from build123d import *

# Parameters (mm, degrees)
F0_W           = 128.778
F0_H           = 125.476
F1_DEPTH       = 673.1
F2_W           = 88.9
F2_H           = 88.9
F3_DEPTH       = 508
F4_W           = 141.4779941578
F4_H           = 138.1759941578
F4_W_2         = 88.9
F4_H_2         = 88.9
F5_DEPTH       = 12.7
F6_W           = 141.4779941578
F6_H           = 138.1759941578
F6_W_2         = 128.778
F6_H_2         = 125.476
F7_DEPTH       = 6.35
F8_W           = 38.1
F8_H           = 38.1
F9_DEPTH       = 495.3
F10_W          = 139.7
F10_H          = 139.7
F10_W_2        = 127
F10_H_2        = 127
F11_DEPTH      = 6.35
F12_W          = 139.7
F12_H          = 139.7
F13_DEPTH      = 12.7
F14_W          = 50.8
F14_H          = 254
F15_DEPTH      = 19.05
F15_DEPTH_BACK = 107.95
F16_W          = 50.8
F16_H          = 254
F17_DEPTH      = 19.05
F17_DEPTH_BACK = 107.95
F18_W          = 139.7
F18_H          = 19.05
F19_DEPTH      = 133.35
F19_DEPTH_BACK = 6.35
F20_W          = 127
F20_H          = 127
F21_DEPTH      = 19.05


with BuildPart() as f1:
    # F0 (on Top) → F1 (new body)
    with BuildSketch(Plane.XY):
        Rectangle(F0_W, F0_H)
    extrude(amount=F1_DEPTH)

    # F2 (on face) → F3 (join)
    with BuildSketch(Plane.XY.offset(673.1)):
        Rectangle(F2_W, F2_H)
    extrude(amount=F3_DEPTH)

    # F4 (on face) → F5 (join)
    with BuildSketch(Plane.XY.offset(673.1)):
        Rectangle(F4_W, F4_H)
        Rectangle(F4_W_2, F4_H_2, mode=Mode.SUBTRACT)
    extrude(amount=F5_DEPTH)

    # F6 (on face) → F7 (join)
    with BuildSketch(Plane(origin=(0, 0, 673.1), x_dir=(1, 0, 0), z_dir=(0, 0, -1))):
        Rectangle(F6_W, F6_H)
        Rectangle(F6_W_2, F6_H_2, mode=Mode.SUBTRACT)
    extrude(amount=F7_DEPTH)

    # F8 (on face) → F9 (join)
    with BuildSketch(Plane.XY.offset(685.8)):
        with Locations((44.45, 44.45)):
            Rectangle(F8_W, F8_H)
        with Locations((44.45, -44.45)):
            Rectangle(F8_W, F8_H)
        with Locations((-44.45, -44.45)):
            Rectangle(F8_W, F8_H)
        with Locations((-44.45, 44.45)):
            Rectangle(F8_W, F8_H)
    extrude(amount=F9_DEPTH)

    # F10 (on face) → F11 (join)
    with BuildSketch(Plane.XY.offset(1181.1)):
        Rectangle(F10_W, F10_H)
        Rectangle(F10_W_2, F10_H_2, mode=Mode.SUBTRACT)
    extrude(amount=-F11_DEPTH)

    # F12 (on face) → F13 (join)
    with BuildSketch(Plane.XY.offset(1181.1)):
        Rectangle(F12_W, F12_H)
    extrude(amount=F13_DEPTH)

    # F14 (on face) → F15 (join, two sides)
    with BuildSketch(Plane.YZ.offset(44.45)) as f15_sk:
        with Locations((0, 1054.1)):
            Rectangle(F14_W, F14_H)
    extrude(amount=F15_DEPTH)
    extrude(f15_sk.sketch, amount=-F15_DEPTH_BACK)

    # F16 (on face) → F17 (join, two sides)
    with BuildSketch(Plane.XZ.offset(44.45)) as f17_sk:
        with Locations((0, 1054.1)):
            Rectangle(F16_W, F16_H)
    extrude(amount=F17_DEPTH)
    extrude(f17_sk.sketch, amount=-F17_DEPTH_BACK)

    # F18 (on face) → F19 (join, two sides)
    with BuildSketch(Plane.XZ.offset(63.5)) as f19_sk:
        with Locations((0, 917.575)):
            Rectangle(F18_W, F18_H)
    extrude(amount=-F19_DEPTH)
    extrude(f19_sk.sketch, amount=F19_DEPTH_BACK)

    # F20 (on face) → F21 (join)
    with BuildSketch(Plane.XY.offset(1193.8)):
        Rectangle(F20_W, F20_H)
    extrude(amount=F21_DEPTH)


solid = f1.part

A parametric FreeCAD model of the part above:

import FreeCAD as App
import Part
import Sketcher

V = App.Vector
Q = App.Units.Quantity

doc = App.newDocument("Part")
body = doc.addObject("PartDesign::Body", "Body")

# Sketch on XY plane
sketch1 = doc.addObject("Sketcher::SketchObject", "Sketch")
body.addObject(sketch1)
sketch1.AttachmentSupport = (doc.XY_Plane, [""])
sketch1.MapMode = "FlatFace"
sketch1.addGeometry([
    Part.LineSegment(V(-64, 63, 0), V(-64, -63, 0)),
    Part.LineSegment(V(-64, -63, 0), V(64, -63, 0)),
    Part.LineSegment(V(64, -63, 0), V(64, 63, 0)),
    Part.LineSegment(V(64, 63, 0), V(-64, 63, 0)),
], False)
sketch1.addConstraint([
    Sketcher.Constraint("Coincident", 0, 2, 1, 1),
    Sketcher.Constraint("Coincident", 1, 2, 2, 1),
    Sketcher.Constraint("Coincident", 2, 2, 3, 1),
    Sketcher.Constraint("Coincident", 3, 2, 0, 1),
    Sketcher.Constraint("Vertical", 0),
    Sketcher.Constraint("Horizontal", 1),
    Sketcher.Constraint("Vertical", 2),
    Sketcher.Constraint("Horizontal", 3),
    Sketcher.Constraint("Symmetric", 0, 2, 2, 2, -1, 1),
    Sketcher.Constraint("DistanceX", 1, 1, 1, 2, Q("5.07 in")),
    Sketcher.Constraint("DistanceY", 0, 2, 0, 1, Q("4.94 in")),
])
pad1 = doc.addObject("PartDesign::Pad", "Pad")
body.addObject(pad1)
pad1.Profile = sketch1
pad1.Length = Q("26.5 in")

# Sketch on XY plane
sketch2 = doc.addObject("Sketcher::SketchObject", "Sketch001")
body.addObject(sketch2)
sketch2.AttachmentSupport = (doc.XY_Plane, [""])
sketch2.MapMode = "FlatFace"
sketch2.AttachmentOffset = App.Placement(V(0, 0, 26.5 * 25.4), App.Rotation())
sketch2.addGeometry([
    Part.LineSegment(V(-44, 44, 0), V(-44, -44, 0)),
    Part.LineSegment(V(-44, -44, 0), V(44, -44, 0)),
    Part.LineSegment(V(44, -44, 0), V(44, 44, 0)),
    Part.LineSegment(V(44, 44, 0), V(-44, 44, 0)),
], False)
sketch2.addConstraint([
    Sketcher.Constraint("Coincident", 0, 2, 1, 1),
    Sketcher.Constraint("Coincident", 1, 2, 2, 1),
    Sketcher.Constraint("Coincident", 2, 2, 3, 1),
    Sketcher.Constraint("Coincident", 3, 2, 0, 1),
    Sketcher.Constraint("Vertical", 0),
    Sketcher.Constraint("Horizontal", 1),
    Sketcher.Constraint("Vertical", 2),
    Sketcher.Constraint("Horizontal", 3),
    Sketcher.Constraint("Symmetric", 0, 2, 2, 2, -1, 1),
    Sketcher.Constraint("Equal", 3, 0),
    Sketcher.Constraint("DistanceX", 1, 1, 1, 2, Q("3.5 in")),
])
pad2 = doc.addObject("PartDesign::Pad", "Pad001")
body.addObject(pad2)
pad2.Profile = sketch2
pad2.Length = Q("20 in")

# Sketch on XY plane
sketch3 = doc.addObject("Sketcher::SketchObject", "Sketch002")
body.addObject(sketch3)
sketch3.AttachmentSupport = (doc.XY_Plane, [""])
sketch3.MapMode = "FlatFace"
sketch3.AttachmentOffset = App.Placement(V(0, 0, 26.5 * 25.4), App.Rotation())
sketch3.addGeometry([
    Part.LineSegment(V(-71, 69, 0), V(-71, -69, 0)),  # 0
    Part.LineSegment(V(-71, -69, 0), V(71, -69, 0)),  # 1
    Part.LineSegment(V(71, -69, 0), V(71, 69, 0)),  # 2
    Part.LineSegment(V(71, 69, 0), V(-71, 69, 0)),  # 3
    Part.LineSegment(V(44, -44, 0), V(-44, -44, 0)),  # 4
    Part.LineSegment(V(-44, -44, 0), V(-44, 44, 0)),  # 5
    Part.LineSegment(V(-44, 44, 0), V(44, 44, 0)),  # 6
    Part.LineSegment(V(44, 44, 0), V(44, -44, 0)),  # 7
], False)
sketch3.addConstraint([
    Sketcher.Constraint("Coincident", 0, 2, 1, 1),
    Sketcher.Constraint("Coincident", 1, 2, 2, 1),
    Sketcher.Constraint("Coincident", 2, 2, 3, 1),
    Sketcher.Constraint("Coincident", 3, 2, 0, 1),
    Sketcher.Constraint("Coincident", 4, 2, 5, 1),
    Sketcher.Constraint("Coincident", 5, 2, 6, 1),
    Sketcher.Constraint("Coincident", 6, 2, 7, 1),
    Sketcher.Constraint("Coincident", 7, 2, 4, 1),
    Sketcher.Constraint("Vertical", 0),
    Sketcher.Constraint("Horizontal", 1),
    Sketcher.Constraint("Vertical", 2),
    Sketcher.Constraint("Horizontal", 3),
    Sketcher.Constraint("Horizontal", 4),
    Sketcher.Constraint("Vertical", 5),
    Sketcher.Constraint("Horizontal", 6),
    Sketcher.Constraint("Vertical", 7),
    Sketcher.Constraint("Symmetric", 0, 2, 2, 2, -1, 1),
    Sketcher.Constraint("Symmetric", 4, 2, 6, 2, -1, 1),
    Sketcher.Constraint("Equal", 6, 5),
    Sketcher.Constraint("DistanceX", 4, 2, 4, 1, Q("3.5 in")),
    Sketcher.Constraint("DistanceY", 0, 2, -1, 1, Q("2.7199999 in")),
    Sketcher.Constraint("DistanceX", 0, 2, -1, 1, Q("2.7849999 in")),
])
pad3 = doc.addObject("PartDesign::Pad", "Pad002")
body.addObject(pad3)
pad3.Profile = sketch3
pad3.Length = Q("0.5 in")

# Sketch on XY plane
sketch4 = doc.addObject("Sketcher::SketchObject", "Sketch003")
body.addObject(sketch4)
sketch4.AttachmentSupport = (doc.XY_Plane, [""])
sketch4.MapMode = "FlatFace"
sketch4.AttachmentOffset = App.Placement(V(0, 0, 26.5 * 25.4), App.Rotation())
sketch4.addGeometry([
    Part.LineSegment(V(-71, -69, 0), V(-71, 69, 0)),  # 0
    Part.LineSegment(V(-71, 69, 0), V(71, 69, 0)),  # 1
    Part.LineSegment(V(71, 69, 0), V(71, -69, 0)),  # 2
    Part.LineSegment(V(71, -69, 0), V(-71, -69, 0)),  # 3
    Part.LineSegment(V(64, 63, 0), V(-64, 63, 0)),  # 4
    Part.LineSegment(V(-64, 63, 0), V(-64, -63, 0)),  # 5
    Part.LineSegment(V(-64, -63, 0), V(64, -63, 0)),  # 6
    Part.LineSegment(V(64, -63, 0), V(64, 63, 0)),  # 7
], False)
sketch4.addConstraint([
    Sketcher.Constraint("Coincident", 0, 2, 1, 1),
    Sketcher.Constraint("Coincident", 1, 2, 2, 1),
    Sketcher.Constraint("Coincident", 2, 2, 3, 1),
    Sketcher.Constraint("Coincident", 3, 2, 0, 1),
    Sketcher.Constraint("Coincident", 4, 2, 5, 1),
    Sketcher.Constraint("Coincident", 5, 2, 6, 1),
    Sketcher.Constraint("Coincident", 6, 2, 7, 1),
    Sketcher.Constraint("Coincident", 7, 2, 4, 1),
    Sketcher.Constraint("Vertical", 0),
    Sketcher.Constraint("Horizontal", 1),
    Sketcher.Constraint("Vertical", 2),
    Sketcher.Constraint("Horizontal", 3),
    Sketcher.Constraint("Horizontal", 4),
    Sketcher.Constraint("Vertical", 5),
    Sketcher.Constraint("Horizontal", 6),
    Sketcher.Constraint("Vertical", 7),
    Sketcher.Constraint("Symmetric", 0, 2, 2, 2, -1, 1),
    Sketcher.Constraint("Symmetric", 4, 2, 6, 2, -1, 1),
    Sketcher.Constraint("DistanceX", 4, 2, 4, 1, Q("5.07 in")),
    Sketcher.Constraint("DistanceY", 5, 2, 5, 1, Q("4.94 in")),
    Sketcher.Constraint("DistanceY", -1, 1, 0, 2, Q("2.7199999 in")),
    Sketcher.Constraint("DistanceX", 0, 2, 4, 2, Q("0.2499999 in")),
])
pad4 = doc.addObject("PartDesign::Pad", "Pad003")
body.addObject(pad4)
pad4.Profile = sketch4
pad4.Length = Q("0.25 in")
pad4.Reversed = True

# Sketch on XY plane
sketch5 = doc.addObject("Sketcher::SketchObject", "Sketch004")
body.addObject(sketch5)
sketch5.AttachmentSupport = (doc.XY_Plane, [""])
sketch5.MapMode = "FlatFace"
sketch5.AttachmentOffset = App.Placement(V(0, 0, 27 * 25.4), App.Rotation())
sketch5.addGeometry([
    Part.LineSegment(V(25, 64, 0), V(25, 25, 0)),  # 0
    Part.LineSegment(V(25, 25, 0), V(64, 25, 0)),  # 1
    Part.LineSegment(V(64, 25, 0), V(64, 64, 0)),  # 2
    Part.LineSegment(V(64, 64, 0), V(25, 64, 0)),  # 3
    Part.LineSegment(V(25, -25, 0), V(25, -64, 0)),  # 4
    Part.LineSegment(V(25, -64, 0), V(64, -64, 0)),  # 5
    Part.LineSegment(V(64, -64, 0), V(64, -25, 0)),  # 6
    Part.LineSegment(V(64, -25, 0), V(25, -25, 0)),  # 7
    Part.LineSegment(V(-64, -25, 0), V(-64, -64, 0)),  # 8
    Part.LineSegment(V(-64, -64, 0), V(-25, -64, 0)),  # 9
    Part.LineSegment(V(-25, -64, 0), V(-25, -25, 0)),  # 10
    Part.LineSegment(V(-25, -25, 0), V(-64, -25, 0)),  # 11
    Part.LineSegment(V(-64, 64, 0), V(-64, 25, 0)),  # 12
    Part.LineSegment(V(-64, 25, 0), V(-25, 25, 0)),  # 13
    Part.LineSegment(V(-25, 25, 0), V(-25, 64, 0)),  # 14
    Part.LineSegment(V(-25, 64, 0), V(-64, 64, 0)),  # 15
], False)
sketch5.addConstraint([
    Sketcher.Constraint("Coincident", 0, 2, 1, 1),
    Sketcher.Constraint("Coincident", 1, 2, 2, 1),
    Sketcher.Constraint("Coincident", 2, 2, 3, 1),
    Sketcher.Constraint("Coincident", 3, 2, 0, 1),
    Sketcher.Constraint("Coincident", 4, 2, 5, 1),
    Sketcher.Constraint("Coincident", 5, 2, 6, 1),
    Sketcher.Constraint("Coincident", 6, 2, 7, 1),
    Sketcher.Constraint("Coincident", 7, 2, 4, 1),
    Sketcher.Constraint("Coincident", 8, 2, 9, 1),
    Sketcher.Constraint("Coincident", 9, 2, 10, 1),
    Sketcher.Constraint("Coincident", 10, 2, 11, 1),
    Sketcher.Constraint("Coincident", 11, 2, 8, 1),
    Sketcher.Constraint("Coincident", 12, 2, 13, 1),
    Sketcher.Constraint("Coincident", 13, 2, 14, 1),
    Sketcher.Constraint("Coincident", 14, 2, 15, 1),
    Sketcher.Constraint("Coincident", 15, 2, 12, 1),
    Sketcher.Constraint("Vertical", 0),
    Sketcher.Constraint("Horizontal", 1),
    Sketcher.Constraint("Vertical", 2),
    Sketcher.Constraint("Horizontal", 3),
    Sketcher.Constraint("Vertical", 4),
    Sketcher.Constraint("Horizontal", 5),
    Sketcher.Constraint("Vertical", 6),
    Sketcher.Constraint("Horizontal", 7),
    Sketcher.Constraint("Vertical", 8),
    Sketcher.Constraint("Horizontal", 9),
    Sketcher.Constraint("Vertical", 10),
    Sketcher.Constraint("Horizontal", 11),
    Sketcher.Constraint("Vertical", 12),
    Sketcher.Constraint("Horizontal", 13),
    Sketcher.Constraint("Vertical", 14),
    Sketcher.Constraint("Horizontal", 15),
    Sketcher.Constraint("Symmetric", 2, 2, 8, 2, -1, 1),
    Sketcher.Constraint("Symmetric", 0, 2, 10, 2, -1, 1),
    Sketcher.Constraint("Symmetric", 6, 2, 12, 2, -1, 1),
    Sketcher.Constraint("Symmetric", 4, 2, 14, 2, -1, 1),
    Sketcher.Constraint("Symmetric", 5, 2, 8, 2, -2),
    Sketcher.Constraint("Symmetric", 7, 2, 10, 2, -2),
    Sketcher.Constraint("Equal", 15, 0),
    Sketcher.Constraint("DistanceX", 1, 1, 1, 2, Q("1.5 in")),
    Sketcher.Constraint("DistanceX", -1, 1, 0, 2, Q("1 in")),
    Sketcher.Constraint("DistanceY", -1, 1, 0, 2, Q("1 in")),
])
pad5 = doc.addObject("PartDesign::Pad", "Pad004")
body.addObject(pad5)
pad5.Profile = sketch5
pad5.Length = Q("19.5 in")

# Sketch on XY plane
sketch6 = doc.addObject("Sketcher::SketchObject", "Sketch005")
body.addObject(sketch6)
sketch6.AttachmentSupport = (doc.XY_Plane, [""])
sketch6.MapMode = "FlatFace"
sketch6.AttachmentOffset = App.Placement(V(0, 0, 46.5 * 25.4), App.Rotation())
sketch6.addGeometry([
    Part.LineSegment(V(-70, 70, 0), V(-70, -70, 0)),  # 0
    Part.LineSegment(V(-70, -70, 0), V(70, -70, 0)),  # 1
    Part.LineSegment(V(70, -70, 0), V(70, 70, 0)),  # 2
    Part.LineSegment(V(70, 70, 0), V(-70, 70, 0)),  # 3
    Part.LineSegment(V(64, -64, 0), V(-64, -64, 0)),  # 4
    Part.LineSegment(V(-64, -64, 0), V(-64, 64, 0)),  # 5
    Part.LineSegment(V(-64, 64, 0), V(64, 64, 0)),  # 6
    Part.LineSegment(V(64, 64, 0), V(64, -64, 0)),  # 7
], False)
sketch6.addConstraint([
    Sketcher.Constraint("Coincident", 0, 2, 1, 1),
    Sketcher.Constraint("Coincident", 1, 2, 2, 1),
    Sketcher.Constraint("Coincident", 2, 2, 3, 1),
    Sketcher.Constraint("Coincident", 3, 2, 0, 1),
    Sketcher.Constraint("Coincident", 4, 2, 5, 1),
    Sketcher.Constraint("Coincident", 5, 2, 6, 1),
    Sketcher.Constraint("Coincident", 6, 2, 7, 1),
    Sketcher.Constraint("Coincident", 7, 2, 4, 1),
    Sketcher.Constraint("Vertical", 0),
    Sketcher.Constraint("Horizontal", 1),
    Sketcher.Constraint("Vertical", 2),
    Sketcher.Constraint("Horizontal", 3),
    Sketcher.Constraint("Horizontal", 4),
    Sketcher.Constraint("Vertical", 5),
    Sketcher.Constraint("Horizontal", 6),
    Sketcher.Constraint("Vertical", 7),
    Sketcher.Constraint("Symmetric", 0, 2, 2, 2, -1, 1),
    Sketcher.Constraint("Symmetric", 4, 2, 6, 2, -1, 1),
    Sketcher.Constraint("Equal", 3, 0),
    Sketcher.Constraint("Equal", 6, 5),
    Sketcher.Constraint("DistanceX", 4, 2, 4, 1, Q("5 in")),
    Sketcher.Constraint("DistanceX", 1, 1, 1, 2, Q("5.5 in")),
])
pad6 = doc.addObject("PartDesign::Pad", "Pad005")
body.addObject(pad6)
pad6.Profile = sketch6
pad6.Length = Q("0.25 in")
pad6.Reversed = True

# Sketch on XY plane
sketch7 = doc.addObject("Sketcher::SketchObject", "Sketch006")
body.addObject(sketch7)
sketch7.AttachmentSupport = (doc.XY_Plane, [""])
sketch7.MapMode = "FlatFace"
sketch7.AttachmentOffset = App.Placement(V(0, 0, 46.5 * 25.4), App.Rotation())
sketch7.addGeometry([
    Part.LineSegment(V(-70, 70, 0), V(-70, -70, 0)),
    Part.LineSegment(V(-70, -70, 0), V(70, -70, 0)),
    Part.LineSegment(V(70, -70, 0), V(70, 70, 0)),
    Part.LineSegment(V(70, 70, 0), V(-70, 70, 0)),
], False)
sketch7.addConstraint([
    Sketcher.Constraint("Coincident", 0, 2, 1, 1),
    Sketcher.Constraint("Coincident", 1, 2, 2, 1),
    Sketcher.Constraint("Coincident", 2, 2, 3, 1),
    Sketcher.Constraint("Coincident", 3, 2, 0, 1),
    Sketcher.Constraint("Vertical", 0),
    Sketcher.Constraint("Horizontal", 1),
    Sketcher.Constraint("Vertical", 2),
    Sketcher.Constraint("Horizontal", 3),
    Sketcher.Constraint("Symmetric", 0, 2, 2, 2, -1, 1),
    Sketcher.Constraint("Equal", 3, 0),
    Sketcher.Constraint("DistanceX", 1, 1, 1, 2, Q("5.5 in")),
])
pad7 = doc.addObject("PartDesign::Pad", "Pad006")
body.addObject(pad7)
pad7.Profile = sketch7
pad7.Length = Q("0.5 in")

# Sketch on YZ plane
sketch8 = doc.addObject("Sketcher::SketchObject", "Sketch007")
body.addObject(sketch8)
sketch8.AttachmentSupport = (doc.YZ_Plane, [""])
sketch8.MapMode = "FlatFace"
sketch8.AttachmentOffset = App.Placement(V(0, 0, 1.75 * 25.4), App.Rotation())
sketch8.addGeometry([
    Part.LineSegment(V(-25, 1181, 0), V(-25, 927, 0)),
    Part.LineSegment(V(-25, 927, 0), V(25, 927, 0)),
    Part.LineSegment(V(25, 927, 0), V(25, 1181, 0)),
    Part.LineSegment(V(25, 1181, 0), V(-25, 1181, 0)),
], False)
sketch8.addConstraint([
    Sketcher.Constraint("Coincident", 0, 2, 1, 1),
    Sketcher.Constraint("Coincident", 1, 2, 2, 1),
    Sketcher.Constraint("Coincident", 2, 2, 3, 1),
    Sketcher.Constraint("Coincident", 3, 2, 0, 1),
    Sketcher.Constraint("Vertical", 0),
    Sketcher.Constraint("Horizontal", 1),
    Sketcher.Constraint("Vertical", 2),
    Sketcher.Constraint("Horizontal", 3),
    Sketcher.Constraint("DistanceX", 1, 1, 1, 2, Q("2 in")),
    Sketcher.Constraint("DistanceY", 0, 2, 0, 1, Q("10 in")),
    Sketcher.Constraint("DistanceX", 0, 2, -1, 1, Q("1 in")),
    Sketcher.Constraint("DistanceY", -1, 1, 0, 2, Q("36.5 in")),
])
pad8 = doc.addObject("PartDesign::Pad", "Pad007")
body.addObject(pad8)
pad8.Profile = sketch8
pad8.Type = "TwoLengths"
pad8.Length = Q("0.75 in")
pad8.Length2 = Q("4.25 in")

# Sketch on XZ plane
sketch9 = doc.addObject("Sketcher::SketchObject", "Sketch008")
body.addObject(sketch9)
sketch9.AttachmentSupport = (doc.XZ_Plane, [""])
sketch9.MapMode = "FlatFace"
sketch9.AttachmentOffset = App.Placement(V(0, 0, 1.75 * 25.4), App.Rotation())
sketch9.addGeometry([
    Part.LineSegment(V(-25, 1181, 0), V(-25, 927, 0)),
    Part.LineSegment(V(-25, 927, 0), V(25, 927, 0)),
    Part.LineSegment(V(25, 927, 0), V(25, 1181, 0)),
    Part.LineSegment(V(25, 1181, 0), V(-25, 1181, 0)),
], False)
sketch9.addConstraint([
    Sketcher.Constraint("Coincident", 0, 2, 1, 1),
    Sketcher.Constraint("Coincident", 1, 2, 2, 1),
    Sketcher.Constraint("Coincident", 2, 2, 3, 1),
    Sketcher.Constraint("Coincident", 3, 2, 0, 1),
    Sketcher.Constraint("Vertical", 0),
    Sketcher.Constraint("Horizontal", 1),
    Sketcher.Constraint("Vertical", 2),
    Sketcher.Constraint("Horizontal", 3),
    Sketcher.Constraint("DistanceX", 1, 1, 1, 2, Q("2 in")),
    Sketcher.Constraint("DistanceY", 0, 2, 0, 1, Q("10 in")),
    Sketcher.Constraint("DistanceX", 0, 2, -1, 1, Q("1 in")),
    Sketcher.Constraint("DistanceY", -1, 1, 0, 2, Q("36.5 in")),
])
pad9 = doc.addObject("PartDesign::Pad", "Pad008")
body.addObject(pad9)
pad9.Profile = sketch9
pad9.Type = "TwoLengths"
pad9.Length = Q("0.75 in")
pad9.Length2 = Q("4.25 in")

# Sketch on XZ plane
sketch10 = doc.addObject("Sketcher::SketchObject", "Sketch009")
body.addObject(sketch10)
sketch10.AttachmentSupport = (doc.XZ_Plane, [""])
sketch10.MapMode = "FlatFace"
sketch10.AttachmentOffset = App.Placement(V(0, 0, 2.5 * 25.4), App.Rotation())
sketch10.addGeometry([
    Part.LineSegment(V(-70, 927, 0), V(-70, 908, 0)),
    Part.LineSegment(V(-70, 908, 0), V(70, 908, 0)),
    Part.LineSegment(V(70, 908, 0), V(70, 927, 0)),
    Part.LineSegment(V(70, 927, 0), V(-70, 927, 0)),
], False)
sketch10.addConstraint([
    Sketcher.Constraint("Coincident", 0, 2, 1, 1),
    Sketcher.Constraint("Coincident", 1, 2, 2, 1),
    Sketcher.Constraint("Coincident", 2, 2, 3, 1),
    Sketcher.Constraint("Coincident", 3, 2, 0, 1),
    Sketcher.Constraint("Vertical", 0),
    Sketcher.Constraint("Horizontal", 1),
    Sketcher.Constraint("Vertical", 2),
    Sketcher.Constraint("Horizontal", 3),
    Sketcher.Constraint("DistanceX", 1, 1, 1, 2, Q("5.5 in")),
    Sketcher.Constraint("DistanceY", 0, 2, 0, 1, Q("0.75 in")),
    Sketcher.Constraint("DistanceY", -1, 1, 2, 2, Q("36.5 in")),
    Sketcher.Constraint("DistanceX", 0, 2, -1, 1, Q("2.75 in")),
])
pad10 = doc.addObject("PartDesign::Pad", "Pad009")
body.addObject(pad10)
pad10.Profile = sketch10
pad10.Type = "TwoLengths"
pad10.Length = Q("5.25 in")
pad10.Length2 = Q("0.25 in")
pad10.Reversed = True

# Sketch on XY plane
sketch11 = doc.addObject("Sketcher::SketchObject", "Sketch010")
body.addObject(sketch11)
sketch11.AttachmentSupport = (doc.XY_Plane, [""])
sketch11.MapMode = "FlatFace"
sketch11.AttachmentOffset = App.Placement(V(0, 0, 47 * 25.4), App.Rotation())
sketch11.addGeometry([
    Part.LineSegment(V(-64, 64, 0), V(-64, -64, 0)),
    Part.LineSegment(V(-64, -64, 0), V(64, -64, 0)),
    Part.LineSegment(V(64, -64, 0), V(64, 64, 0)),
    Part.LineSegment(V(64, 64, 0), V(-64, 64, 0)),
], False)
sketch11.addConstraint([
    Sketcher.Constraint("Coincident", 0, 2, 1, 1),
    Sketcher.Constraint("Coincident", 1, 2, 2, 1),
    Sketcher.Constraint("Coincident", 2, 2, 3, 1),
    Sketcher.Constraint("Coincident", 3, 2, 0, 1),
    Sketcher.Constraint("Vertical", 0),
    Sketcher.Constraint("Horizontal", 1),
    Sketcher.Constraint("Vertical", 2),
    Sketcher.Constraint("Horizontal", 3),
    Sketcher.Constraint("Symmetric", 0, 2, 2, 2, -1, 1),
    Sketcher.Constraint("Equal", 3, 0),
    Sketcher.Constraint("DistanceX", 1, 1, 1, 2, Q("5 in")),
])
pad11 = doc.addObject("PartDesign::Pad", "Pad010")
body.addObject(pad11)
pad11.Profile = sketch11
pad11.Length = Q("0.75 in")

doc.recompute()
